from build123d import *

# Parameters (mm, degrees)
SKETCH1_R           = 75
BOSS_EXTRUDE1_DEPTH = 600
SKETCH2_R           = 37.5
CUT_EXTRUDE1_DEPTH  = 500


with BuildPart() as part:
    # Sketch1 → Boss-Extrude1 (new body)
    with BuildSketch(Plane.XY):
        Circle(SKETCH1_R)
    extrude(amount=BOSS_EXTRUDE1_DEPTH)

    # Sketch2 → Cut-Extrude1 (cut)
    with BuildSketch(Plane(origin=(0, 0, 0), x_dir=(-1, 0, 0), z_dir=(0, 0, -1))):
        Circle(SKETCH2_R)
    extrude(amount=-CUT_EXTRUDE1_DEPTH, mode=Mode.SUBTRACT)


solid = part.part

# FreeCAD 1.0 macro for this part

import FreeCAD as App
import Part
import Sketcher
Q = App.Units.Quantity

doc = App.newDocument("Part")
body = doc.addObject("PartDesign::Body", "Body")

# Sketch on XY plane
sketch1 = body.newObject("Sketcher::SketchObject", "Sketch")
sketch1.AttachmentSupport = (doc.getObject("XY_Plane"), [""])
sketch1.MapMode = "FlatFace"
sketch1.addGeometry(Part.Circle(App.Vector(0, 0, 0), App.Vector(0, 0, 1), 75), False)
sketch1.addConstraint(Sketcher.Constraint("Coincident", 0, 3, -1, 1))
sketch1.addConstraint(Sketcher.Constraint("Diameter", 0, Q("150 mm")))
pad1 = body.newObject("PartDesign::Pad", "Pad")
pad1.Profile = sketch1
pad1.Length = 600

# Sketch on XY plane
sketch2 = body.newObject("Sketcher::SketchObject", "Sketch001")
sketch2.AttachmentSupport = (doc.getObject("XY_Plane"), [""])
sketch2.MapMode = "FlatFace"
sketch2.addGeometry(Part.Circle(App.Vector(0, 0, 0), App.Vector(0, 0, 1), 38), False)
sketch2.addConstraint(Sketcher.Constraint("Coincident", 0, 3, -1, 1))
sketch2.addConstraint(Sketcher.Constraint("Diameter", 0, Q("75 mm")))
pocket1 = body.newObject("PartDesign::Pocket", "Pocket")
pocket1.Profile = sketch2
pocket1.Length = 500
pocket1.Reversed = True

doc.recompute()
